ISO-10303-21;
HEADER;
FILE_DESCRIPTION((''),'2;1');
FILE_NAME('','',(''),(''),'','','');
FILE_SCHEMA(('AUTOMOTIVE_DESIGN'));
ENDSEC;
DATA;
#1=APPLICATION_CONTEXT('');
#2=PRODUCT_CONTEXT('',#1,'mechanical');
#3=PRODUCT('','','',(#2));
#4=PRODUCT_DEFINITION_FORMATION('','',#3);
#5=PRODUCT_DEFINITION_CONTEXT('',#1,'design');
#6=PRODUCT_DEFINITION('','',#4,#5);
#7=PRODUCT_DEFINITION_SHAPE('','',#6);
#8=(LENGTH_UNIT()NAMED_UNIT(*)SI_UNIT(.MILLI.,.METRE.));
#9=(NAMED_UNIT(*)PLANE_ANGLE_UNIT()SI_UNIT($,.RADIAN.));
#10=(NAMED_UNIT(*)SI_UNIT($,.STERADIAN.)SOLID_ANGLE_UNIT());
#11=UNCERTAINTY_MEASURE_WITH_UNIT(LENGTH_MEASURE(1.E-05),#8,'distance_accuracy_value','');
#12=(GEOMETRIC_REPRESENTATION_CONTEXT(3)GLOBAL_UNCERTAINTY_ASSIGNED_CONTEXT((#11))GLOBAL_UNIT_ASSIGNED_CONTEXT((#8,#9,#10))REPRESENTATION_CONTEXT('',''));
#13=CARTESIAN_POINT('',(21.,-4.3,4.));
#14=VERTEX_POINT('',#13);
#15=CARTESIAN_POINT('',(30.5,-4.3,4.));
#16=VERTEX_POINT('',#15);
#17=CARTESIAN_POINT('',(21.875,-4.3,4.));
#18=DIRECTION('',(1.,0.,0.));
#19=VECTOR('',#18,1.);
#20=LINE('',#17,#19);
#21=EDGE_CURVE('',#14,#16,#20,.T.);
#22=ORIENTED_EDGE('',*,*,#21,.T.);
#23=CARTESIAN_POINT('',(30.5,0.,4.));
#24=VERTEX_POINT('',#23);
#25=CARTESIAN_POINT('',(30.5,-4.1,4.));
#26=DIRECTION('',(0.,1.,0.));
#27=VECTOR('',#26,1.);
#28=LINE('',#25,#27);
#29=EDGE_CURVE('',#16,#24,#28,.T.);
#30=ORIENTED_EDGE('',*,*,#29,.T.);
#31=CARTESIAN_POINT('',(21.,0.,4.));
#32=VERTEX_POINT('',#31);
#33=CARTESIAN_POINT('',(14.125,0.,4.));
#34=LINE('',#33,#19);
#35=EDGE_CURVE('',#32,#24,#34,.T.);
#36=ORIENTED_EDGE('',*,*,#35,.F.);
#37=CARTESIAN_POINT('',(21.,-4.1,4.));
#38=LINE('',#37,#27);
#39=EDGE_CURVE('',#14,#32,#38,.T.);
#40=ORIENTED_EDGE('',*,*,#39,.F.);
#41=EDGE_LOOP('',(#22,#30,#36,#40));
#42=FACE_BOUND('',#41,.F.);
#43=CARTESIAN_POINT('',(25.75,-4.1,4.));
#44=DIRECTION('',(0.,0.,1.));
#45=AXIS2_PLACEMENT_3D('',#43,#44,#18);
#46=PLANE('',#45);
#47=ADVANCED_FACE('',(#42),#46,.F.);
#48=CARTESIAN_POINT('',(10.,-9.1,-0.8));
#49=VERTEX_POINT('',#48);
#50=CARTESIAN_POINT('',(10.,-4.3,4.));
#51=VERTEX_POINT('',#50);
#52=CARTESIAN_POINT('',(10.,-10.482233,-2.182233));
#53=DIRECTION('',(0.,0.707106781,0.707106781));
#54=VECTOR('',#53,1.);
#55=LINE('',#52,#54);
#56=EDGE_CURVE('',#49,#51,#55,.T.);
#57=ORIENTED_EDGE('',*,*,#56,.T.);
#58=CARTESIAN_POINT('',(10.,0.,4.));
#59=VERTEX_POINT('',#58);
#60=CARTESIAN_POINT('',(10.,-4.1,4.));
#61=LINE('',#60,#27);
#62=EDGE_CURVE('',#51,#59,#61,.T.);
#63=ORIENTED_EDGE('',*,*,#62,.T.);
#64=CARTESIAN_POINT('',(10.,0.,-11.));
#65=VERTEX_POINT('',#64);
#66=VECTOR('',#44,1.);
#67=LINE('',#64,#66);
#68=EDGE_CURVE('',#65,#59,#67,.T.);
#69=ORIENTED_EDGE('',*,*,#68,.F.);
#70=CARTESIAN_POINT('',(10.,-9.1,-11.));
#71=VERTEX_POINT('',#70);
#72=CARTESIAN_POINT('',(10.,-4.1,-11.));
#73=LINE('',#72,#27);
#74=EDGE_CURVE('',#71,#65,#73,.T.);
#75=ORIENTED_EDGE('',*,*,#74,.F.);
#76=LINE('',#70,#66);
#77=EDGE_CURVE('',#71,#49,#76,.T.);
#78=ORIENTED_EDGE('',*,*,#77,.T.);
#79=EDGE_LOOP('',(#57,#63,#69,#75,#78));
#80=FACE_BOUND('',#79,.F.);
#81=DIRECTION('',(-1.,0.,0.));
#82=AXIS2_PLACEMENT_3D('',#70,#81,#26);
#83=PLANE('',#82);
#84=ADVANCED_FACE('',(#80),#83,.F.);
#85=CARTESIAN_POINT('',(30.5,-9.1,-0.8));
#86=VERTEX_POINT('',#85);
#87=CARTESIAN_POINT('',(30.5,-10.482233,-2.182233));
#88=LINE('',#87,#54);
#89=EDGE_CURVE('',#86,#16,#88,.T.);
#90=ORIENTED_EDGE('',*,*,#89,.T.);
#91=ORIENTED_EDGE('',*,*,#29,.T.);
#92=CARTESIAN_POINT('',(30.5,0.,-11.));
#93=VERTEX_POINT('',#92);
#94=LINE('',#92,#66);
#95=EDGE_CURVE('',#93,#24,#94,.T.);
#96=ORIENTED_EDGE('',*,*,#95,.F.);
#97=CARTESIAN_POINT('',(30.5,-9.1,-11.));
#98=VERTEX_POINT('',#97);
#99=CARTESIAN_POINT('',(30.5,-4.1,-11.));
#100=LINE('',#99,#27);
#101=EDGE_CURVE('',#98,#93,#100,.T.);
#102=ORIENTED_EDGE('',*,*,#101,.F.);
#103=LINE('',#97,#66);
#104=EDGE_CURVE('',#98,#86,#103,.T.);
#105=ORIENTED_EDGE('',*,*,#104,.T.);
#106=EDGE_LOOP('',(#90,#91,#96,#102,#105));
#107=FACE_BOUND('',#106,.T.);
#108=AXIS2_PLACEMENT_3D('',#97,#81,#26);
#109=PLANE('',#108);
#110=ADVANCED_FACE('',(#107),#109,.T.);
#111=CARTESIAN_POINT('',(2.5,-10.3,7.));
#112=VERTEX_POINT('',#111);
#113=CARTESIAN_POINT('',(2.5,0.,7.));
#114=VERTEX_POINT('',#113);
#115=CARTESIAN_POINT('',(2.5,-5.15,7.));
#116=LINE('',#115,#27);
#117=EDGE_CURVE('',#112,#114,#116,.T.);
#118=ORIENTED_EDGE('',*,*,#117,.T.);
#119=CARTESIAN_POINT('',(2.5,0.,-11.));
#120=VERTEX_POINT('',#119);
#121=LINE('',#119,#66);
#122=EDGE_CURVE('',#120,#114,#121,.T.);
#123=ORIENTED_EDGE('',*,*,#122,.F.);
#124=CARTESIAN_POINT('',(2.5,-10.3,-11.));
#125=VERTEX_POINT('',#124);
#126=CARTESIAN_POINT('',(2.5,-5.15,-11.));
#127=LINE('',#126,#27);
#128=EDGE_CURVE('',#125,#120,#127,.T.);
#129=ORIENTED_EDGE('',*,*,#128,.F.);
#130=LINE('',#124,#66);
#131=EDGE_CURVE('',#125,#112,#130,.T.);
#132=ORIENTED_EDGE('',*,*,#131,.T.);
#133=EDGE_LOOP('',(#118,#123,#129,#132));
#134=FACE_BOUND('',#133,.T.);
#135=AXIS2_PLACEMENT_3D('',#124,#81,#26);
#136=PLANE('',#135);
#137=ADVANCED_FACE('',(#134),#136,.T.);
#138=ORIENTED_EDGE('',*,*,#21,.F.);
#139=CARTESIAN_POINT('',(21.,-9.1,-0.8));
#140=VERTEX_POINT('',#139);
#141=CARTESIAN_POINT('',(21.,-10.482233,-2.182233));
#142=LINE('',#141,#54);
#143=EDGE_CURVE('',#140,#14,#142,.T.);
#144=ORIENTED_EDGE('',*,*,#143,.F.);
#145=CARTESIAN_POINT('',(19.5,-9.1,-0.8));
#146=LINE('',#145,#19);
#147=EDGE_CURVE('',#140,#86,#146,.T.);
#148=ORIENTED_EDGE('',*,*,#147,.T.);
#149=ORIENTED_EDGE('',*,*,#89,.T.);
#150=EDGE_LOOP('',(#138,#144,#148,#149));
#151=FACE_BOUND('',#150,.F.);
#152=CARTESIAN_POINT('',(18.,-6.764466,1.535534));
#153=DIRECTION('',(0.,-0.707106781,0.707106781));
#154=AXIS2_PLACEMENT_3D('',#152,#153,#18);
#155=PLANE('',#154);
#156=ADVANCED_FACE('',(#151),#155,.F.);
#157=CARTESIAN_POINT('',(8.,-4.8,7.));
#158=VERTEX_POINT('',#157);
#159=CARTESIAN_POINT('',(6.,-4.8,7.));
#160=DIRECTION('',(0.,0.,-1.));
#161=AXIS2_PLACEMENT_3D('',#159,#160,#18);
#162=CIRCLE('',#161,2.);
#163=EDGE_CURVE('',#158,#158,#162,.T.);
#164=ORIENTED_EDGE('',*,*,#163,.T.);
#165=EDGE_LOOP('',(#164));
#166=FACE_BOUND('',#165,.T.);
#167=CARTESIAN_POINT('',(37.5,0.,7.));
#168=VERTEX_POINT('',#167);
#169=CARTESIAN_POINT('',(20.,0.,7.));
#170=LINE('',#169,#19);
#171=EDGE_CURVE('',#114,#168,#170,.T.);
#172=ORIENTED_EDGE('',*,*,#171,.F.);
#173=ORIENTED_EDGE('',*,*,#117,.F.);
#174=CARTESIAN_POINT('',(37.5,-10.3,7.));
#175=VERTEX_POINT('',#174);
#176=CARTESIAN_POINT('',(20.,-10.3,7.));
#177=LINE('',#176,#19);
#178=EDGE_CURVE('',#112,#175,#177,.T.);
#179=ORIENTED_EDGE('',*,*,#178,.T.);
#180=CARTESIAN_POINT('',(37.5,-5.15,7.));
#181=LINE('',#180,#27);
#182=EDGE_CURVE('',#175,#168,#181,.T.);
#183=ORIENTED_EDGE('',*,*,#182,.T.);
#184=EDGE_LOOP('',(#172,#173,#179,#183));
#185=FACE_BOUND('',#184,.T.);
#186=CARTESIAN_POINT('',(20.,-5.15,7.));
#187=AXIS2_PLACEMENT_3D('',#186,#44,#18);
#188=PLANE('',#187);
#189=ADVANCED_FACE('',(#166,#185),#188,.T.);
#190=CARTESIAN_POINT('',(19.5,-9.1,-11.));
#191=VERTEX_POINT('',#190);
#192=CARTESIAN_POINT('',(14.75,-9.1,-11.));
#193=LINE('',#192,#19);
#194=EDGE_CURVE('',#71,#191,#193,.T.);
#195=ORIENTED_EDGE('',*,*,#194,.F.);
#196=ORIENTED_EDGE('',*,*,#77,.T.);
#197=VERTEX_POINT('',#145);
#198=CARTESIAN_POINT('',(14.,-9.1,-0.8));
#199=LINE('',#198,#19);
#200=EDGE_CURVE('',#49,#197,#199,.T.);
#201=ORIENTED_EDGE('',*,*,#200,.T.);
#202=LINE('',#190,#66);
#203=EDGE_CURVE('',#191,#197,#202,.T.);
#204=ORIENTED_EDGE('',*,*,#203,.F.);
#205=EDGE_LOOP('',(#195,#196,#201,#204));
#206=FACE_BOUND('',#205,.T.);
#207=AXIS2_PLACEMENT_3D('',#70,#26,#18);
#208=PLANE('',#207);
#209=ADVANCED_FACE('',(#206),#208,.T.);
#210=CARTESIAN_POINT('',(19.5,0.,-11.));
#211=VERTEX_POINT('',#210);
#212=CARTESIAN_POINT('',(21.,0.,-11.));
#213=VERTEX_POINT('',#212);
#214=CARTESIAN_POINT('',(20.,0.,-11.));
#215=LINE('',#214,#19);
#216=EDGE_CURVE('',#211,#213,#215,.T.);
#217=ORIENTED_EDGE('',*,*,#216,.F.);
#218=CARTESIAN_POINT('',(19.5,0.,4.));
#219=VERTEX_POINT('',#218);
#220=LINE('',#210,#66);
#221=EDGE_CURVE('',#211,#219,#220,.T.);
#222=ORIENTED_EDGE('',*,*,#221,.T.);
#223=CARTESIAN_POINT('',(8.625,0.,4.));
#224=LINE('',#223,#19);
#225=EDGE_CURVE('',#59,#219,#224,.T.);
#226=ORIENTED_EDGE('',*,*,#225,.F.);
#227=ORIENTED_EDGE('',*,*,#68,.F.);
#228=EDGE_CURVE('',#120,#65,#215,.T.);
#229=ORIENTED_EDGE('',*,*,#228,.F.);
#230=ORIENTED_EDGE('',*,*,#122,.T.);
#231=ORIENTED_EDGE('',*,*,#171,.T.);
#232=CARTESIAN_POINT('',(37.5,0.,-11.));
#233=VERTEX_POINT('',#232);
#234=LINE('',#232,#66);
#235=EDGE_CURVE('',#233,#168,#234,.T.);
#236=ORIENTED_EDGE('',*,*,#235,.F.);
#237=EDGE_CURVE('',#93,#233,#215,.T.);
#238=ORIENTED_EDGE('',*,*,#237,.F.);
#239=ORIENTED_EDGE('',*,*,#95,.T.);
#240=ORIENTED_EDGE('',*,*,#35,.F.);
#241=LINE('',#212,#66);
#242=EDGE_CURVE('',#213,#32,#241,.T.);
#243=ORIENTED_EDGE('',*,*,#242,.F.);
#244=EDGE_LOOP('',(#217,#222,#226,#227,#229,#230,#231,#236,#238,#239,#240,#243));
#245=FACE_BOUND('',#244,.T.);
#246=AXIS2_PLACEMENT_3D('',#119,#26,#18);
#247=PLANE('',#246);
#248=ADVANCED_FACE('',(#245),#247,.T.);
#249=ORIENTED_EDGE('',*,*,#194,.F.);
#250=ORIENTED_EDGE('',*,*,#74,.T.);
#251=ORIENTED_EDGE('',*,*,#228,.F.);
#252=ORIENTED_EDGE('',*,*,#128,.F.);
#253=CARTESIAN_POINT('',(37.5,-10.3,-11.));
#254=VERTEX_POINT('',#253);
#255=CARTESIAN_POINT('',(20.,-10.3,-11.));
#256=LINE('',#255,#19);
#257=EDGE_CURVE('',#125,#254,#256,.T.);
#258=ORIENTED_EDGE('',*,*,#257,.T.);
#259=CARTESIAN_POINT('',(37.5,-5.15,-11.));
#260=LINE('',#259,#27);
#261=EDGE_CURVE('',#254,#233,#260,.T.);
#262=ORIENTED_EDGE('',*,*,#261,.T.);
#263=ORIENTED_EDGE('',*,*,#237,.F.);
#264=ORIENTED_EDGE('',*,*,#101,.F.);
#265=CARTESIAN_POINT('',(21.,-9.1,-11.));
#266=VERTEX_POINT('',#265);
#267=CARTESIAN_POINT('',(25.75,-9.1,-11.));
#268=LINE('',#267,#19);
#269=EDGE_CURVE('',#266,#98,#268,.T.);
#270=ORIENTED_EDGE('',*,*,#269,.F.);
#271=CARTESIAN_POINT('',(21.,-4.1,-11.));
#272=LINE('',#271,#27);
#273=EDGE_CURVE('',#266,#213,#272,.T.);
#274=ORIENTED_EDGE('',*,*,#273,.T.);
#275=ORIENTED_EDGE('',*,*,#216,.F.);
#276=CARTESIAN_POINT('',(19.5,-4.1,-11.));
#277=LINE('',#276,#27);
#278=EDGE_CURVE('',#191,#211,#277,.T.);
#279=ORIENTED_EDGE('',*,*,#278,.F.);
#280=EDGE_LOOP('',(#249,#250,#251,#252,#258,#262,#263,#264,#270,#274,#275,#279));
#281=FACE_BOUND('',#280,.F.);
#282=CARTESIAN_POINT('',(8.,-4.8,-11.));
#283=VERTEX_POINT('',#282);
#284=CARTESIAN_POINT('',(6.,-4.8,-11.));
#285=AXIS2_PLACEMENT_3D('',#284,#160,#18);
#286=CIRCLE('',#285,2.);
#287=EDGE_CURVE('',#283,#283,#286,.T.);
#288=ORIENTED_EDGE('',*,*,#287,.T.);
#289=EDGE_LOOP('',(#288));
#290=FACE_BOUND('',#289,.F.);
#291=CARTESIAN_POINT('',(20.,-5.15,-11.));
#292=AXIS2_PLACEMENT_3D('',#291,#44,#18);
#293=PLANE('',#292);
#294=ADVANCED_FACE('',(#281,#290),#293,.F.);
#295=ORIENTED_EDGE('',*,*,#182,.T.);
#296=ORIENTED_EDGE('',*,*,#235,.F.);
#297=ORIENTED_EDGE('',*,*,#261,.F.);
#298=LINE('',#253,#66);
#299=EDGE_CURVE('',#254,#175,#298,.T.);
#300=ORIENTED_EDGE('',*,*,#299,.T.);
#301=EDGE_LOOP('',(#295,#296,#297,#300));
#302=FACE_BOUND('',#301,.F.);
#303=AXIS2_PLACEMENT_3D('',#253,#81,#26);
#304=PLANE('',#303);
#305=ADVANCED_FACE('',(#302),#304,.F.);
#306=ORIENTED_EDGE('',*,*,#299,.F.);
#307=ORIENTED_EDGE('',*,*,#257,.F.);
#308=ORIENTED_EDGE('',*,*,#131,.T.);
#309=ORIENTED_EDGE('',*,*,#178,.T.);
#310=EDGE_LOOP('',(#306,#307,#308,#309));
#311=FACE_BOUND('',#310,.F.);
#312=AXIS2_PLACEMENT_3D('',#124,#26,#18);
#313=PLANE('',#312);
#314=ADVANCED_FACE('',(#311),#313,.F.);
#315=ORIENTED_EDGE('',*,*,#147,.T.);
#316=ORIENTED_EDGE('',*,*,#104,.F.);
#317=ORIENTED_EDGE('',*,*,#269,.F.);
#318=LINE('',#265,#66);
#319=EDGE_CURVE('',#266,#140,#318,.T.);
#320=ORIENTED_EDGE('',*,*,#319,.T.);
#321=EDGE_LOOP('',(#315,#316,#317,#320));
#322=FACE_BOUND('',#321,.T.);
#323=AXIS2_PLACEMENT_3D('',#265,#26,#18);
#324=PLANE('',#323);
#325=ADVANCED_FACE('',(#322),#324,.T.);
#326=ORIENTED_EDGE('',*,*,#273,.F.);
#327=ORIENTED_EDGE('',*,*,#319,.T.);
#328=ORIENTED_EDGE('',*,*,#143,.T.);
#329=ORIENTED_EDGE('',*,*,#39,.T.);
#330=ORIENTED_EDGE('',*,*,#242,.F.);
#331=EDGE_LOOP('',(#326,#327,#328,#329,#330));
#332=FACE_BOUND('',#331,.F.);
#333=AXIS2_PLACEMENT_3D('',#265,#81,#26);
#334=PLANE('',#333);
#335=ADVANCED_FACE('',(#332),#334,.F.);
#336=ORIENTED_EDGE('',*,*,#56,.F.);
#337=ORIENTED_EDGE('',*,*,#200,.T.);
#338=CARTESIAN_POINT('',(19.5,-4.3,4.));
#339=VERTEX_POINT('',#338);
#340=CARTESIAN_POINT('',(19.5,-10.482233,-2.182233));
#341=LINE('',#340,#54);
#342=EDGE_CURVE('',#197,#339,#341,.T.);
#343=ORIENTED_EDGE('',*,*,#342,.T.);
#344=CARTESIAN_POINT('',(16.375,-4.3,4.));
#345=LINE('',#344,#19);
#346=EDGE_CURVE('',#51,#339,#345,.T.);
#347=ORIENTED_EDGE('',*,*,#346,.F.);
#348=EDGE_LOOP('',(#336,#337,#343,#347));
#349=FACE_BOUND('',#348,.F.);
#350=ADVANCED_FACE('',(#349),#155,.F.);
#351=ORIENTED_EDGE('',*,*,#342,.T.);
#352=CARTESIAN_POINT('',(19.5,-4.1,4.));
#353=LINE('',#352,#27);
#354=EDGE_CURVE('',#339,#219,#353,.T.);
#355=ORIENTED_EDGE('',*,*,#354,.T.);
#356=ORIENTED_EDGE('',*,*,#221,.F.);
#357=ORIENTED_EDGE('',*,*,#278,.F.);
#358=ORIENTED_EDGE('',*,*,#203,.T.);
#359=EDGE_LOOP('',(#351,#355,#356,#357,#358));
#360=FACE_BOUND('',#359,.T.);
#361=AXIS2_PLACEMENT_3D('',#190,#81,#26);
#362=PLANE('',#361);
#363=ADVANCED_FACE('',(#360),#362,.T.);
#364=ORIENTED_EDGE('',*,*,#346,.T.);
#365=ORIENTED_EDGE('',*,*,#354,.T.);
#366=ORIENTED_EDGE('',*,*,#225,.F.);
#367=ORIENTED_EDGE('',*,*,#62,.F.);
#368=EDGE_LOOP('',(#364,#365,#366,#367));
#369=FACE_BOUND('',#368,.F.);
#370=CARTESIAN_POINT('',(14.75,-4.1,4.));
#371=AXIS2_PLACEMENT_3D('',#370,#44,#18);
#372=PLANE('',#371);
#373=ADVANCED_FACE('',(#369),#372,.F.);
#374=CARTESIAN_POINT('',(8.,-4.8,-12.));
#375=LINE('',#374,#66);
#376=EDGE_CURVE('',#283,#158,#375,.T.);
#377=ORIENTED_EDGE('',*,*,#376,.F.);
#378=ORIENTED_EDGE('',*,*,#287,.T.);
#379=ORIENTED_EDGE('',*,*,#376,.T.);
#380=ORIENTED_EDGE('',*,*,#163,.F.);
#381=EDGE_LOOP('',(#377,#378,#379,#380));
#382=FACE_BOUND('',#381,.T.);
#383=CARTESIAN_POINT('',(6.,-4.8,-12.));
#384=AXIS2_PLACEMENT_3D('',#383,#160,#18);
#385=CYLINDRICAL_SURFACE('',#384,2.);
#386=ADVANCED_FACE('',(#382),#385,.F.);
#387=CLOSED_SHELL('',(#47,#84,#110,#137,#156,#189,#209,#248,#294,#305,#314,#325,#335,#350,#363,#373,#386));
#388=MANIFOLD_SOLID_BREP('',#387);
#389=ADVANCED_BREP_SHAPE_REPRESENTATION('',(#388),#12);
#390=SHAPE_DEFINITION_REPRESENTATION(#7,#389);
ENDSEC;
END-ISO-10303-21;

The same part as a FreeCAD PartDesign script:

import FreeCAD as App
import Part
import Sketcher

V = App.Vector

doc = App.newDocument("Part")
body = doc.addObject("PartDesign::Body", "Body")

sketch1 = body.newObject("Sketcher::SketchObject", "Sketch")
sketch1.AttachmentSupport = (doc.getObject("XY_Plane"), [""])
sketch1.MapMode = "FlatFace"
sketch1.AttachmentOffset = App.Placement(V(0, 0, -12), App.Rotation())
sketch1.addGeometry(Part.Circle(V(6, -4.5, 0), V(0, 0, 1), 2), False)
sketch1.addConstraint([
    Sketcher.Constraint("Diameter", 0, 4.0),
    Sketcher.Constraint("DistanceX", -1, 1, 0, 3, 6.0),
    Sketcher.Constraint("DistanceY", 0, 3, -1, 1, 4.5),
])
pad1 = body.newObject("PartDesign::Pad", "Pad")
pad1.Profile = sketch1
pad1.Length = 20
body2 = doc.addObject("PartDesign::Body", "Body001")

sketch2 = body2.newObject("Sketcher::SketchObject", "Sketch001")
sketch2.AttachmentSupport = (doc.getObject("XY_Plane001"), [""])
sketch2.MapMode = "FlatFace"
sketch2.addGeometry([
    Part.LineSegment(V(0, 10, 0), V(0, 0, 0)),
    Part.LineSegment(V(0, 0, 0), V(36, 0, 0)),
    Part.LineSegment(V(36, 0, 0), V(36, 10, 0)),
    Part.LineSegment(V(36, 10, 0), V(0, 10, 0)),
], False)
sketch2.addConstraint([
    Sketcher.Constraint("Coincident", 0, 2, 1, 1),
    Sketcher.Constraint("Coincident", 1, 2, 2, 1),
    Sketcher.Constraint("Coincident", 2, 2, 3, 1),
    Sketcher.Constraint("Coincident", 3, 2, 0, 1),
    Sketcher.Constraint("Vertical", 0),
    Sketcher.Constraint("Horizontal", 1),
    Sketcher.Constraint("Vertical", 2),
    Sketcher.Constraint("Horizontal", 3),
    Sketcher.Constraint("Coincident", 0, 2, -1, 1),
    Sketcher.Constraint("DistanceX", 1, 1, 1, 2, 36.0),
    Sketcher.Constraint("DistanceY", 0, 2, 0, 1, 10.0),
])
pad2 = body2.newObject("PartDesign::Pad", "Pad001")
pad2.Profile = sketch2
pad2.Length = 10
body3 = doc.addObject("PartDesign::Body", "Body002")
doc.recompute()

body2.Placement = App.Placement(V(0, 0, 0), App.Rotation(V(1, 0, 0), 45))
boolean = body3.newObject("PartDesign::Boolean", "Boolean")
boolean.Type = "Fuse"
boolean.addObjects([body2])
body4 = doc.addObject("PartDesign::Body", "Body003")
doc.recompute()

body3.Placement = App.Placement(V(0, -10, -2), App.Rotation(V(0, 0, 1), 0))
boolean2 = body4.newObject("PartDesign::Boolean", "Boolean001")
boolean2.Type = "Fuse"
boolean2.addObjects([body3])
body5 = doc.addObject("PartDesign::Body", "Body004")

sketch3 = body5.newObject("Sketcher::SketchObject", "Sketch002")
sketch3.AttachmentSupport = (doc.getObject("XY_Plane004"), [""])
sketch3.MapMode = "FlatFace"
sketch3.AttachmentOffset = App.Placement(V(0, 0, -11), App.Rotation())
sketch3.addGeometry([
    Part.LineSegment(V(21, 1, 0), V(21, -9, 0)),
    Part.LineSegment(V(21, -9, 0), V(30, -9, 0)),
    Part.LineSegment(V(30, -9, 0), V(30, 1, 0)),
    Part.LineSegment(V(30, 1, 0), V(21, 1, 0)),
], False)
sketch3.addConstraint([
    Sketcher.Constraint("Coincident", 0, 2, 1, 1),
    Sketcher.Constraint("Coincident", 1, 2, 2, 1),
    Sketcher.Constraint("Coincident", 2, 2, 3, 1),
    Sketcher.Constraint("Coincident", 3, 2, 0, 1),
    Sketcher.Constraint("Vertical", 0),
    Sketcher.Constraint("Horizontal", 1),
    Sketcher.Constraint("Vertical", 2),
    Sketcher.Constraint("Horizontal", 3),
    Sketcher.Constraint("DistanceY", 0, 2, 0, 1, 10.0),
    Sketcher.Constraint("DistanceX", 1, 1, 1, 2, 9.5),
    Sketcher.Constraint("DistanceX", -1, 1, 0, 2, 21.0),
    Sketcher.Constraint("DistanceY", 0, 2, -1, 1, 8.8),
])
pad3 = body5.newObject("PartDesign::Pad", "Pad002")
pad3.Profile = sketch3
pad3.Length = 15
body6 = doc.addObject("PartDesign::Body", "Body005")
body6.AllowCompound = True

sketch4 = body6.newObject("Sketcher::SketchObject", "Sketch003")
sketch4.AttachmentSupport = (doc.getObject("XY_Plane005"), [""])
sketch4.MapMode = "FlatFace"
sketch4.AttachmentOffset = App.Placement(V(0, 0, -11), App.Rotation())
sketch4.addGeometry([
    Part.LineSegment(V(10, 1, 0), V(10, -9, 0)),
    Part.LineSegment(V(10, -9, 0), V(20, -9, 0)),
    Part.LineSegment(V(20, -9, 0), V(20, 1, 0)),
    Part.LineSegment(V(20, 1, 0), V(10, 1, 0)),
], False)
sketch4.addConstraint([
    Sketcher.Constraint("Coincident", 0, 2, 1, 1),
    Sketcher.Constraint("Coincident", 1, 2, 2, 1),
    Sketcher.Constraint("Coincident", 2, 2, 3, 1),
    Sketcher.Constraint("Coincident", 3, 2, 0, 1),
    Sketcher.Constraint("Vertical", 0),
    Sketcher.Constraint("Horizontal", 1),
    Sketcher.Constraint("Vertical", 2),
    Sketcher.Constraint("Horizontal", 3),
    Sketcher.Constraint("DistanceY", 0, 2, 0, 1, 10.0),
    Sketcher.Constraint("DistanceX", 1, 1, 1, 2, 9.5),
    Sketcher.Constraint("DistanceX", -1, 1, 0, 2, 10.0),
    Sketcher.Constraint("DistanceY", 0, 2, -1, 1, 8.8),
])
pad4 = body6.newObject("PartDesign::Pad", "Pad003")
pad4.Profile = sketch4
pad4.Length = 15
doc.recompute()

boolean3 = body6.newObject("PartDesign::Boolean", "Boolean002")
boolean3.Type = "Fuse"
boolean3.addObjects([body5])
doc.recompute()

boolean4 = body6.newObject("PartDesign::Boolean", "Boolean003")
boolean4.Type = "Cut"
boolean4.addObjects([body4])
doc.recompute()

boolean5 = body6.newObject("PartDesign::Boolean", "Boolean004")
boolean5.Type = "Fuse"
boolean5.addObjects([body])
body7 = doc.addObject("PartDesign::Body", "Body006")

sketch5 = body7.newObject("Sketcher::SketchObject", "Sketch004")
sketch5.AttachmentSupport = (doc.getObject("XY_Plane006"), [""])
sketch5.MapMode = "FlatFace"
sketch5.AttachmentOffset = App.Placement(V(0, 0, -11), App.Rotation())
sketch5.addGeometry([
    Part.LineSegment(V(2, 0, 0), V(2, -10, 0)),
    Part.LineSegment(V(2, -10, 0), V(38, -10, 0)),
    Part.LineSegment(V(38, -10, 0), V(38, 0, 0)),
    Part.LineSegment(V(38, 0, 0), V(2, 0, 0)),
], False)
sketch5.addConstraint([
    Sketcher.Constraint("Coincident", 0, 2, 1, 1),
    Sketcher.Constraint("Coincident", 1, 2, 2, 1),
    Sketcher.Constraint("Coincident", 2, 2, 3, 1),
    Sketcher.Constraint("Coincident", 3, 2, 0, 1),
    Sketcher.Constraint("Vertical", 0),
    Sketcher.Constraint("Horizontal", 1),
    Sketcher.Constraint("Vertical", 2),
    Sketcher.Constraint("Horizontal", 3),
    Sketcher.Constraint("DistanceX", 1, 1, 1, 2, 35.0),
    Sketcher.Constraint("DistanceY", 0, 2, 0, 1, 10.3),
    Sketcher.Constraint("DistanceY", 0, 2, -1, 1, 10.0),
    Sketcher.Constraint("DistanceX", -1, 1, 0, 2, 2.5),
])
pad5 = body7.newObject("PartDesign::Pad", "Pad004")
pad5.Profile = sketch5
pad5.Length = 18
doc.recompute()

boolean6 = body7.newObject("PartDesign::Boolean", "Boolean005")
boolean6.Type = "Cut"
boolean6.addObjects([body6])
body8 = doc.addObject("PartDesign::Body", "Body007")
doc.recompute()

body7.Placement = App.Placement(V(0, -0.3, 0), App.Rotation(V(0, 0, 1), 0))
boolean7 = body8.newObject("PartDesign::Boolean", "Boolean006")
boolean7.Type = "Fuse"
boolean7.addObjects([body7])

doc.recompute()
